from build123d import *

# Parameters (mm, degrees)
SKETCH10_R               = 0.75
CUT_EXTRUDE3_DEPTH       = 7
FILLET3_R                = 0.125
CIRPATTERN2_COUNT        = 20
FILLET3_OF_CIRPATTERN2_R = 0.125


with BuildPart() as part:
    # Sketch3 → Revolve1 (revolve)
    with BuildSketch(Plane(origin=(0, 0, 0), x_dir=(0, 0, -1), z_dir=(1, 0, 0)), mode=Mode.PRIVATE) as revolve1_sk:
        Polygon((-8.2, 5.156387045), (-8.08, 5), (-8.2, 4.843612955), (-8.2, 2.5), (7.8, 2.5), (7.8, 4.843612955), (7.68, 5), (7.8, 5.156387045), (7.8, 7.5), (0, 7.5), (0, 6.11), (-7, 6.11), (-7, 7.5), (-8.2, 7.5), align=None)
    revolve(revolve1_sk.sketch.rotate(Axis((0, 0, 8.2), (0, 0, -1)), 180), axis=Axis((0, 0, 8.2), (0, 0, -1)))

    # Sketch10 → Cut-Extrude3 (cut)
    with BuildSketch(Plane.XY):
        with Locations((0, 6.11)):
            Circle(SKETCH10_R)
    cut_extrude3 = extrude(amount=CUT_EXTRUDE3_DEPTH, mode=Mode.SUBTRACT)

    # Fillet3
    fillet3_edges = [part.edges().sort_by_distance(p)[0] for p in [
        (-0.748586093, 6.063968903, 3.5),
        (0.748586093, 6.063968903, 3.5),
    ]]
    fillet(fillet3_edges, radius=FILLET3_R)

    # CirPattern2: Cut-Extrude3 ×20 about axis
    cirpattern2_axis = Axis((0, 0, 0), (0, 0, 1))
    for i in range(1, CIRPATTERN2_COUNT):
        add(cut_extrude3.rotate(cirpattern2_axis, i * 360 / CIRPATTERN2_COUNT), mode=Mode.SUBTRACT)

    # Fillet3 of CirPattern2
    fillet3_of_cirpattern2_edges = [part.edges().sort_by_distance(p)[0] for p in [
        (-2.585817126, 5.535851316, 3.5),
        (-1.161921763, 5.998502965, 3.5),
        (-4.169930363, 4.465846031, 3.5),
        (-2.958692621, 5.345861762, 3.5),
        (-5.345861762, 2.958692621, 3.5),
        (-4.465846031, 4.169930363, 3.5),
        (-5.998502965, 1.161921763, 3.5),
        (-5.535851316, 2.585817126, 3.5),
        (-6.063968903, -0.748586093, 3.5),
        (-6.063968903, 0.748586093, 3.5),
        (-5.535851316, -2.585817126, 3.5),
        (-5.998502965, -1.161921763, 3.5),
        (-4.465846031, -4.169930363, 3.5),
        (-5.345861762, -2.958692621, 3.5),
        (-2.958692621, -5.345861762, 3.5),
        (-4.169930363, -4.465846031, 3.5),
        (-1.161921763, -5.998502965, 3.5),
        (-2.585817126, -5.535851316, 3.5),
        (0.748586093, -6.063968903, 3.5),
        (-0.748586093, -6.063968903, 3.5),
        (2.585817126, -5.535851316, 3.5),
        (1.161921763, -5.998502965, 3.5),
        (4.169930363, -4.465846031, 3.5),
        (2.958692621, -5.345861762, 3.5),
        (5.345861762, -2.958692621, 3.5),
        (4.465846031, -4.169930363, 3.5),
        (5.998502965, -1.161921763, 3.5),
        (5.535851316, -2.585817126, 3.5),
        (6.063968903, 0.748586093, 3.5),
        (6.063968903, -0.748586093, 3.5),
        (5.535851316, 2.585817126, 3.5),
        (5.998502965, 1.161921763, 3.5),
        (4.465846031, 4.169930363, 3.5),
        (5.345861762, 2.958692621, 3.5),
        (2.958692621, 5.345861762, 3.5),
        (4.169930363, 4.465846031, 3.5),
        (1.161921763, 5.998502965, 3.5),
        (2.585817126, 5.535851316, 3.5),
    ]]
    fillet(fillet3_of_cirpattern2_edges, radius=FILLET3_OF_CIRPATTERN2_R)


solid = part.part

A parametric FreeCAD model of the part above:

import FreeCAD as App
import Part
import Sketcher
Q = App.Units.Quantity


def edges_at(feature, points):
    """Names of the edges that pass closest to the given points."""
    edges = feature.Shape.Edges
    near = lambda p: min(range(len(edges)), key=lambda i: edges[i].distToShape(Part.Vertex(*p))[0])
    return sorted({f"Edge{near(p) + 1}" for p in points})

doc = App.newDocument("Part")
body = doc.addObject("PartDesign::Body", "Body")

# Sketch on YZ plane
sketch1 = doc.addObject("Sketcher::SketchObject", "Sketch")
body.addObject(sketch1)
sketch1.AttachmentSupport = (doc.YZ_Plane, [""])
sketch1.MapMode = "FlatFace"
sketch1.addGeometry([
    Part.LineSegment(App.Vector(5.16, 8.2, 0), App.Vector(5, 8.08, 0)),  # 0
    Part.LineSegment(App.Vector(5, 8.08, 0), App.Vector(4.84, 8.2, 0)),  # 1
    Part.LineSegment(App.Vector(4.84, 8.2, 0), App.Vector(2.5, 8.2, 0)),  # 2
    Part.LineSegment(App.Vector(2.5, 8.2, 0), App.Vector(2.5, -7.8, 0)),  # 3
    Part.LineSegment(App.Vector(2.5, -7.8, 0), App.Vector(4.84, -7.8, 0)),  # 4
    Part.LineSegment(App.Vector(4.84, -7.8, 0), App.Vector(5, -7.68, 0)),  # 5
    Part.LineSegment(App.Vector(5, -7.68, 0), App.Vector(5.16, -7.8, 0)),  # 6
    Part.LineSegment(App.Vector(5.16, -7.8, 0), App.Vector(7.5, -7.8, 0)),  # 7
    Part.LineSegment(App.Vector(7.5, -7.8, 0), App.Vector(7.5, 0, 0)),  # 8
    Part.LineSegment(App.Vector(7.5, 0, 0), App.Vector(6.11, 0, 0)),  # 9
    Part.LineSegment(App.Vector(6.11, 0, 0), App.Vector(6.11, 7, 0)),  # 10
    Part.LineSegment(App.Vector(6.11, 7, 0), App.Vector(7.5, 7, 0)),  # 11
    Part.LineSegment(App.Vector(7.5, 7, 0), App.Vector(7.5, 8.2, 0)),  # 12
    Part.LineSegment(App.Vector(7.5, 8.2, 0), App.Vector(5.16, 8.2, 0)),  # 13
], False)
sketch1.addConstraint([
    Sketcher.Constraint("Coincident", 0, 2, 1, 1),
    Sketcher.Constraint("Coincident", 1, 2, 2, 1),
    Sketcher.Constraint("Coincident", 2, 2, 3, 1),
    Sketcher.Constraint("Coincident", 3, 2, 4, 1),
    Sketcher.Constraint("Coincident", 4, 2, 5, 1),
    Sketcher.Constraint("Coincident", 5, 2, 6, 1),
    Sketcher.Constraint("Coincident", 6, 2, 7, 1),
    Sketcher.Constraint("Coincident", 7, 2, 8, 1),
    Sketcher.Constraint("Coincident", 8, 2, 9, 1),
    Sketcher.Constraint("Coincident", 9, 2, 10, 1),
    Sketcher.Constraint("Coincident", 10, 2, 11, 1),
    Sketcher.Constraint("Coincident", 11, 2, 12, 1),
    Sketcher.Constraint("Coincident", 12, 2, 13, 1),
    Sketcher.Constraint("Coincident", 13, 2, 0, 1),
    Sketcher.Constraint("Horizontal", 2),
    Sketcher.Constraint("Vertical", 3),
    Sketcher.Constraint("Horizontal", 4),
    Sketcher.Constraint("Horizontal", 7),
    Sketcher.Constraint("Vertical", 8),
    Sketcher.Constraint("Horizontal", 9),
    Sketcher.Constraint("Vertical", 10),
    Sketcher.Constraint("Horizontal", 11),
    Sketcher.Constraint("Vertical", 12),
    Sketcher.Constraint("Horizontal", 13),
    Sketcher.Constraint("PointOnObject", 8, 2, -1),
    Sketcher.Constraint("Parallel", 0, 5),
    Sketcher.Constraint("Parallel", 1, 6),
    Sketcher.Constraint("Horizontal", 4, 2, 6, 2),
    Sketcher.Constraint("Horizontal", 2, 2, 12, 2),
    Sketcher.Constraint("Vertical", 1, 2, 4, 2),
    Sketcher.Constraint("Vertical", 0, 2, 5, 2),
    Sketcher.Constraint("Vertical", 8, 2, 11, 2),
    Sketcher.Constraint("Vertical", 6, 2, 13, 2),
    Sketcher.Constraint("Equal", 4, 7),
    Sketcher.Constraint("DistanceY", 3, 2, 3, 1, Q("16 mm")),
    Sketcher.Constraint("DistanceY", 10, 1, 10, 2, Q("7 mm")),
    Sketcher.Constraint("DistanceY", 8, 1, 8, 2, Q("7.8 mm")),
    Sketcher.Constraint("DistanceX", -1, 1, 0, 2, Q("5 mm")),
    Sketcher.Constraint("Angle", 0, Q("-142.5 deg")),
    Sketcher.Constraint("DistanceX", 3, 2, 7, 2, Q("5 mm")),
    Sketcher.Constraint("DistanceX", 9, 2, 9, 1, Q("1.39 mm")),
    Sketcher.Constraint("DistanceY", -1, 1, 0, 2, Q("8.08 mm")),
])
revolution = doc.addObject("PartDesign::Revolution", "Revolution")
body.addObject(revolution)
revolution.Profile = sketch1
revolution.ReferenceAxis = (sketch1, ["V_Axis"])
revolution.Angle = 360

# Sketch on XY plane
sketch2 = doc.addObject("Sketcher::SketchObject", "Sketch001")
body.addObject(sketch2)
sketch2.AttachmentSupport = (doc.XY_Plane, [""])
sketch2.MapMode = "FlatFace"
sketch2.addGeometry(Part.Circle(App.Vector(0, 6.1, 0), App.Vector(0, 0, 1), 0.8), False)
sketch2.addConstraint([
    Sketcher.Constraint("PointOnObject", 0, 3, -2),
    Sketcher.Constraint("Diameter", 0, Q("1.5 mm")),
    Sketcher.Constraint("DistanceY", -1, 1, 0, 3, Q("6.11 mm")),
])
pocket1 = doc.addObject("PartDesign::Pocket", "Pocket")
body.addObject(pocket1)
pocket1.Profile = sketch2
pocket1.Length = 7
pocket1.Reversed = True
doc.recompute()

fillet = doc.addObject("PartDesign::Fillet", "Fillet")
body.addObject(fillet)
fillet.Base = (pocket1, edges_at(pocket1, [(-0.749, 6.064, 3.5), (0.749, 6.064, 3.5)]))
fillet.Radius = 0.125
doc.recompute()

polarpattern = doc.addObject("PartDesign::PolarPattern", "PolarPattern")
body.addObject(polarpattern)
polarpattern.Originals = [pocket1]
polarpattern.Axis = (doc.Z_Axis, [""])
polarpattern.Angle = 360
polarpattern.Occurrences = 20
body.Tip = polarpattern
doc.recompute()

fillet2 = doc.addObject("PartDesign::Fillet", "Fillet001")
body.addObject(fillet2)
fillet2.Base = (polarpattern, edges_at(polarpattern, [
    (-2.586, 5.536, 3.5),
    (-1.162, 5.999, 3.5),
    (-4.17, 4.466, 3.5),
    (-2.959, 5.346, 3.5),
    (-5.346, 2.959, 3.5),
    (-4.466, 4.17, 3.5),
    (-5.999, 1.162, 3.5),
    (-5.536, 2.586, 3.5),
    (-6.064, -0.749, 3.5),
    (-6.064, 0.749, 3.5),
    (-5.536, -2.586, 3.5),
    (-5.999, -1.162, 3.5),
    (-4.466, -4.17, 3.5),
    (-5.346, -2.959, 3.5),
    (-2.959, -5.346, 3.5),
    (-4.17, -4.466, 3.5),
    (-1.162, -5.999, 3.5),
    (-2.586, -5.536, 3.5),
    (0.749, -6.064, 3.5),
    (-0.749, -6.064, 3.5),
    (2.586, -5.536, 3.5),
    (1.162, -5.999, 3.5),
    (4.17, -4.466, 3.5),
    (2.959, -5.346, 3.5),
    (5.346, -2.959, 3.5),
    (4.466, -4.17, 3.5),
    (5.999, -1.162, 3.5),
    (5.536, -2.586, 3.5),
    (6.064, 0.749, 3.5),
    (6.064, -0.749, 3.5),
    (5.536, 2.586, 3.5),
    (5.999, 1.162, 3.5),
    (4.466, 4.17, 3.5),
    (5.346, 2.959, 3.5),
    (2.959, 5.346, 3.5),
    (4.17, 4.466, 3.5),
    (1.162, 5.999, 3.5),
    (2.586, 5.536, 3.5),
]))
fillet2.Radius = 0.125

doc.recompute()
